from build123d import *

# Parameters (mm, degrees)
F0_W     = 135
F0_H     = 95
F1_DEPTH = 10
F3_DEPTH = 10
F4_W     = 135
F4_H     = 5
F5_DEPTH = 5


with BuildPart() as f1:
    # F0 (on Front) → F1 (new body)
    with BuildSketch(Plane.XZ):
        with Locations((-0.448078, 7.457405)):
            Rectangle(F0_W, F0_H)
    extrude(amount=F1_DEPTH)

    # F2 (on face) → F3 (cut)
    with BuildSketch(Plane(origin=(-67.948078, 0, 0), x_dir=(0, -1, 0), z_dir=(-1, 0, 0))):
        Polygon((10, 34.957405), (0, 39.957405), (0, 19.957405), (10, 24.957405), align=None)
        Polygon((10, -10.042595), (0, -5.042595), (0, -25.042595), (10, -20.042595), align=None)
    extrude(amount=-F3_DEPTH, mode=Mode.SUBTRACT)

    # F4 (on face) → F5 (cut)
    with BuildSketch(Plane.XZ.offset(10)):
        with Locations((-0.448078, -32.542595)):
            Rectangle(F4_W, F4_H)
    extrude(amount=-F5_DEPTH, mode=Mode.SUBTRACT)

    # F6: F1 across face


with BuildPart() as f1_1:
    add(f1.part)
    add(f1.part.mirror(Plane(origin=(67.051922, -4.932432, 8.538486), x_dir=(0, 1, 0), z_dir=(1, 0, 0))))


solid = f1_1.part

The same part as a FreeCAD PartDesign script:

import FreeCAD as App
import Part
import Sketcher

V = App.Vector
Q = App.Units.Quantity

doc = App.newDocument("Part")
body = doc.addObject("PartDesign::Body", "Body")

sketch1 = body.newObject("Sketcher::SketchObject", "Sketch")
sketch1.AttachmentSupport = (doc.getObject("XZ_Plane"), [""])
sketch1.MapMode = "FlatFace"
sketch1.addGeometry([
    Part.LineSegment(V(-67.948078, 54.957405, 0), V(-67.948078, -40.042595, 0)),
    Part.LineSegment(V(-67.948078, -40.042595, 0), V(67.051922, -40.042595, 0)),
    Part.LineSegment(V(67.051922, -40.042595, 0), V(67.051922, 54.957405, 0)),
    Part.LineSegment(V(67.051922, 54.957405, 0), V(-67.948078, 54.957405, 0)),
], False)
sketch1.addConstraint([
    Sketcher.Constraint("Coincident", 0, 2, 1, 1),
    Sketcher.Constraint("Coincident", 1, 2, 2, 1),
    Sketcher.Constraint("Coincident", 2, 2, 3, 1),
    Sketcher.Constraint("Coincident", 3, 2, 0, 1),
    Sketcher.Constraint("Vertical", 0),
    Sketcher.Constraint("Horizontal", 1),
    Sketcher.Constraint("Vertical", 2),
    Sketcher.Constraint("Horizontal", 3),
    Sketcher.Constraint("DistanceX", 1, 1, 1, 2, Q("135 mm")),
    Sketcher.Constraint("DistanceY", 0, 2, 0, 1, Q("95 mm")),
    Sketcher.Constraint("DistanceX", 0, 2, -1, 1, Q("67.948078 mm")),
    Sketcher.Constraint("DistanceY", 0, 2, -1, 1, Q("40.042595 mm")),
])
pad1 = body.newObject("PartDesign::Pad", "Pad")
pad1.Profile = sketch1
pad1.Length = 10

sketch2 = body.newObject("Sketcher::SketchObject", "Sketch001")
sketch2.AttachmentSupport = (doc.getObject("YZ_Plane"), [""])
sketch2.MapMode = "FlatFace"
sketch2.AttachmentOffset = App.Placement(V(0, 0, -67.948078), App.Rotation())
sketch2.addGeometry([
    Part.LineSegment(V(-10, 34.957405, 0), V(0, 39.957405, 0)),
    Part.LineSegment(V(0, 39.957405, 0), V(0, 19.957405, 0)),
    Part.LineSegment(V(0, 19.957405, 0), V(-10, 24.957405, 0)),
    Part.LineSegment(V(-10, 24.957405, 0), V(-10, 34.957405, 0)),
    Part.LineSegment(V(-10, -10.042595, 0), V(0, -5.042595, 0)),
    Part.LineSegment(V(0, -5.042595, 0), V(0, -25.042595, 0)),
    Part.LineSegment(V(0, -25.042595, 0), V(-10, -20.042595, 0)),
    Part.LineSegment(V(-10, -20.042595, 0), V(-10, -10.042595, 0)),
], False)
sketch2.addConstraint([
    Sketcher.Constraint("Coincident", 0, 2, 1, 1),
    Sketcher.Constraint("Coincident", 1, 2, 2, 1),
    Sketcher.Constraint("Coincident", 2, 2, 3, 1),
    Sketcher.Constraint("Coincident", 3, 2, 0, 1),
    Sketcher.Constraint("Coincident", 4, 2, 5, 1),
    Sketcher.Constraint("Coincident", 5, 2, 6, 1),
    Sketcher.Constraint("Coincident", 6, 2, 7, 1),
    Sketcher.Constraint("Coincident", 7, 2, 4, 1),
    Sketcher.Constraint("Vertical", 1),
    Sketcher.Constraint("Vertical", 3),
    Sketcher.Constraint("Vertical", 5),
    Sketcher.Constraint("Vertical", 7),
    Sketcher.Constraint("PointOnObject", 0, 2, -2),
    Sketcher.Constraint("PointOnObject", 4, 2, -2),
    Sketcher.Constraint("Parallel", 0, 4),
    Sketcher.Constraint("Parallel", 2, 6),
    Sketcher.Constraint("Vertical", 3, 2, 6, 2),
    Sketcher.Constraint("Equal", 1, 5),
    Sketcher.Constraint("Equal", 0, 2),
    Sketcher.Constraint("DistanceY", 1, 2, 1, 1, Q("20 mm")),
    Sketcher.Constraint("DistanceY", 3, 1, 3, 2, Q("10 mm")),
    Sketcher.Constraint("DistanceX", 2, 2, -1, 1, Q("10 mm")),
    Sketcher.Constraint("DistanceY", 4, 2, 1, 2, Q("25 mm")),
    Sketcher.Constraint("DistanceY", -1, 1, 0, 2, Q("39.957405 mm")),
])
pocket1 = body.newObject("PartDesign::Pocket", "Pocket")
pocket1.Profile = sketch2
pocket1.Length = 10
pocket1.Reversed = True

sketch3 = body.newObject("Sketcher::SketchObject", "Sketch002")
sketch3.AttachmentSupport = (doc.getObject("XZ_Plane"), [""])
sketch3.MapMode = "FlatFace"
sketch3.AttachmentOffset = App.Placement(V(0, 0, 10), App.Rotation())
sketch3.addGeometry([
    Part.LineSegment(V(-67.948078, -30.042595, 0), V(-67.948078, -35.042595, 0)),
    Part.LineSegment(V(-67.948078, -35.042595, 0), V(67.051922, -35.042595, 0)),
    Part.LineSegment(V(67.051922, -35.042595, 0), V(67.051922, -30.042595, 0)),
    Part.LineSegment(V(67.051922, -30.042595, 0), V(-67.948078, -30.042595, 0)),
], False)
sketch3.addConstraint([
    Sketcher.Constraint("Coincident", 0, 2, 1, 1),
    Sketcher.Constraint("Coincident", 1, 2, 2, 1),
    Sketcher.Constraint("Coincident", 2, 2, 3, 1),
    Sketcher.Constraint("Coincident", 3, 2, 0, 1),
    Sketcher.Constraint("Vertical", 0),
    Sketcher.Constraint("Horizontal", 1),
    Sketcher.Constraint("Vertical", 2),
    Sketcher.Constraint("Horizontal", 3),
    Sketcher.Constraint("DistanceX", 1, 1, 1, 2, Q("135 mm")),
    Sketcher.Constraint("DistanceY", 0, 2, 0, 1, Q("5 mm")),
    Sketcher.Constraint("DistanceX", 0, 2, -1, 1, Q("67.948078 mm")),
    Sketcher.Constraint("DistanceY", 0, 2, -1, 1, Q("35.042595 mm")),
])
pocket2 = body.newObject("PartDesign::Pocket", "Pocket001")
pocket2.Profile = sketch3
pocket2.Length = 5
body2 = doc.addObject("PartDesign::Body", "Body001")
doc.recompute()

body2.BaseFeature = body
doc.recompute()

mirroring = doc.addObject("Part::Mirroring", "Mirroring")
mirroring.Source = body
mirroring.Base = V(67.051922, -4.932432, 8.538486)
mirroring.Normal = V(1, 0, 0)
body3 = doc.addObject("PartDesign::Body", "Body002")
body3.BaseFeature = mirroring
boolean = body2.newObject("PartDesign::Boolean", "Boolean")
boolean.Type = "Fuse"
boolean.addObjects([body3])
doc.recompute()
mirroring.Visibility = False

doc.recompute()
